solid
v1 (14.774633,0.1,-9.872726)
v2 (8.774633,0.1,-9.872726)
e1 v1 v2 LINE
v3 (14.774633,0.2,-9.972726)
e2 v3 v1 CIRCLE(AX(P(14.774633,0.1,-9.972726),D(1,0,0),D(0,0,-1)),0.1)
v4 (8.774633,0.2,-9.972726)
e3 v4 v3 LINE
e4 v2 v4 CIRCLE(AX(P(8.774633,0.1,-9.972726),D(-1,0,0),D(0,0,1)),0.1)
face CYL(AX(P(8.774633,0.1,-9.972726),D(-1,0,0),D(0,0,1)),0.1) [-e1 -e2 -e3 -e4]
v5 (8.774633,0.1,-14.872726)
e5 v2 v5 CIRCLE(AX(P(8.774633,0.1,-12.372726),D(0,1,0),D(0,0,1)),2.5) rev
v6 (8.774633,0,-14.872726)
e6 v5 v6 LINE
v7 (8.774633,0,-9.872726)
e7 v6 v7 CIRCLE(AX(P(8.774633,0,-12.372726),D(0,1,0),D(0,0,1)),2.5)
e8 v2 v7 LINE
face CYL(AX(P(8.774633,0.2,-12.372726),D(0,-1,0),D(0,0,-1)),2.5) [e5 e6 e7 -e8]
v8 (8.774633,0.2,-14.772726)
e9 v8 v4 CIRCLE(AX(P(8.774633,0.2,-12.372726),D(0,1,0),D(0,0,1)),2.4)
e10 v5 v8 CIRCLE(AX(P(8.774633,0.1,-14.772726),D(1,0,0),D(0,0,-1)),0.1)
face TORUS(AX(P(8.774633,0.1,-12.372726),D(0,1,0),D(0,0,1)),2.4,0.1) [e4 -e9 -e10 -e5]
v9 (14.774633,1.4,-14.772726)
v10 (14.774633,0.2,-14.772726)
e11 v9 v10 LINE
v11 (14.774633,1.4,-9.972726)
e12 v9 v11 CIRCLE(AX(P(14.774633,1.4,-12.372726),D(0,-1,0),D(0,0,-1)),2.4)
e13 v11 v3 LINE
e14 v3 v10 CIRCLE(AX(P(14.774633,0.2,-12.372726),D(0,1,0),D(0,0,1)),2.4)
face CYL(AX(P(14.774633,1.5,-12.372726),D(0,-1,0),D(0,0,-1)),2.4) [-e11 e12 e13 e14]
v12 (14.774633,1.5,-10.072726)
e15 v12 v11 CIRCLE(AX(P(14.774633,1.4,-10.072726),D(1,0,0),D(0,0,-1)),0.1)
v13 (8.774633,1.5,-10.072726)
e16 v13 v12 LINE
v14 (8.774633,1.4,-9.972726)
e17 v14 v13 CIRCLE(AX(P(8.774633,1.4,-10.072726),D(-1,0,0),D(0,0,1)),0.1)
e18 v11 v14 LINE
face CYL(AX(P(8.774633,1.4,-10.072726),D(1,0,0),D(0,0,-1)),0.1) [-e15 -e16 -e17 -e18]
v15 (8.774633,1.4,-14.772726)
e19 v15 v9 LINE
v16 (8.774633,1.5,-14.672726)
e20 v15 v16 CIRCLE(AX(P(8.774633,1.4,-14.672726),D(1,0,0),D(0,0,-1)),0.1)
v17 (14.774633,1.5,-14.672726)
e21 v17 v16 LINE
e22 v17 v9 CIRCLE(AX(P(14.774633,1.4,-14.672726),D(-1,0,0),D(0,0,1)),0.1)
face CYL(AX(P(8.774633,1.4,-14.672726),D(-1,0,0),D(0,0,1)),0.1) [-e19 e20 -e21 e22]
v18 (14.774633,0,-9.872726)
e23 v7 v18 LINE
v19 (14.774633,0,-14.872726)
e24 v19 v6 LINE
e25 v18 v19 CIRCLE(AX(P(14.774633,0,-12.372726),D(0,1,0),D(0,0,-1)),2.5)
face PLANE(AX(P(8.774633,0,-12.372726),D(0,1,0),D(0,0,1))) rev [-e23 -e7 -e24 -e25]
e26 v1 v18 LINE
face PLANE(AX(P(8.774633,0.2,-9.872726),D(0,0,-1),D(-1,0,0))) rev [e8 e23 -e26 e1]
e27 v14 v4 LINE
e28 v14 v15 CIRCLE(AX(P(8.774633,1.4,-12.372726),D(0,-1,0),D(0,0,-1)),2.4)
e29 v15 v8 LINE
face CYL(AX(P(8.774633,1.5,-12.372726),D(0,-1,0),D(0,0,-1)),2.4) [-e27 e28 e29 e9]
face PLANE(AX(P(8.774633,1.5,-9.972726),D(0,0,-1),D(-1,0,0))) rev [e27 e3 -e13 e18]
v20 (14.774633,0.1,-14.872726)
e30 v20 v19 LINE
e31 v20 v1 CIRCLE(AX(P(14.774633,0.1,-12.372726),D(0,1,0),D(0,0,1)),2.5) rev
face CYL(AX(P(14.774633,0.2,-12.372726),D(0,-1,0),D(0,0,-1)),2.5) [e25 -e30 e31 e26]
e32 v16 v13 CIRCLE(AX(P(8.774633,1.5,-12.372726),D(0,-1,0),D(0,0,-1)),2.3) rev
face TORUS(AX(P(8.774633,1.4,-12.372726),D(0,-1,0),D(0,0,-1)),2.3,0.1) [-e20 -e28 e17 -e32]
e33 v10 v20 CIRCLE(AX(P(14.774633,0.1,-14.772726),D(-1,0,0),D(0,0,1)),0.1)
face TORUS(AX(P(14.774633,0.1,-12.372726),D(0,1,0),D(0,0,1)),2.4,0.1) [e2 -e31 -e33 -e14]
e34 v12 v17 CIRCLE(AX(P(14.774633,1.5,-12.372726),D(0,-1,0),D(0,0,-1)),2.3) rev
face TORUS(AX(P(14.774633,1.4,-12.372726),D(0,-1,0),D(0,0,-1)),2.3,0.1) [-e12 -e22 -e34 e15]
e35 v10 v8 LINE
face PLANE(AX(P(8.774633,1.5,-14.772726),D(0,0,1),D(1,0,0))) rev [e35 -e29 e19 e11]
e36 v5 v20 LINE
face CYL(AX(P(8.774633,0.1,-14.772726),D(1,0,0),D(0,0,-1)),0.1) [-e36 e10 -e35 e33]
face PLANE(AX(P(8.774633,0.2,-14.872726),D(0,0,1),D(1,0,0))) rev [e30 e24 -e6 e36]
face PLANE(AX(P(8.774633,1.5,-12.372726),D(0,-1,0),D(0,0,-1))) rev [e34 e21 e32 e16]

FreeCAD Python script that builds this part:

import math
import FreeCAD as App
import Part
import Sketcher
from FreeCAD import Vector
Q = App.Units.Quantity


def edges_at(feature, points):
    """Names of the edges that pass closest to the given points."""
    edges = feature.Shape.Edges
    near = lambda p: min(range(len(edges)), key=lambda i: edges[i].distToShape(Part.Vertex(*p))[0])
    return sorted({f"Edge{near(p) + 1}" for p in points})

doc = App.newDocument("Part")
params = doc.addObject("Spreadsheet::Sheet", "Params")
for row, (alias, value) in enumerate([
    ("sketch1_radius", "2.5 mm"),
    ("sketch1_width", "6 mm"),
    ("pad1_length", "0.2 mm"),
    ("fillet_radius", "0.1 mm"),
    ("sketch2_radius", "2.4 mm"),
    ("sketch2_width", "6 mm"),
    ("pad2_length", "1.3 mm"),
    ("fillet2_radius", "0.1 mm"),
], start=1):
    params.set(f"A{row}", alias)
    params.set(f"B{row}", "=" + value)
    params.setAlias(f"B{row}", alias)

body = doc.addObject("PartDesign::Body", "Body")

sketch1 = doc.addObject("Sketcher::SketchObject", "Sketch")
body.addObject(sketch1)
sketch1.AttachmentSupport = (doc.XZ_Plane, [""])
sketch1.MapMode = "FlatFace"
sketch1.addGeometry(Part.LineSegment(Vector(14.8, -14.9, 0), Vector(8.8, -14.9, 0)), False)
sketch1.addGeometry(Part.ArcOfCircle(Part.Circle(Vector(8.8, -12.4, 0), Vector(0, 0, 1), 2.5), math.radians(90), math.radians(270)), False)
sketch1.addGeometry(Part.LineSegment(Vector(8.8, -9.9, 0), Vector(14.8, -9.9, 0)), False)
sketch1.addGeometry(Part.ArcOfCircle(Part.Circle(Vector(14.8, -12.4, 0), Vector(0, 0, 1), 2.5), math.radians(-90), math.radians(90)), False)
sketch1.addConstraint(Sketcher.Constraint("Tangent", 0, 2, 1, 2))
sketch1.addConstraint(Sketcher.Constraint("Tangent", 1, 1, 2, 1))
sketch1.addConstraint(Sketcher.Constraint("Tangent", 2, 2, 3, 2))
sketch1.addConstraint(Sketcher.Constraint("Tangent", 3, 1, 0, 1))
sketch1.addConstraint(Sketcher.Constraint("Horizontal", 0))
sketch1.addConstraint(Sketcher.Constraint("Horizontal", 2))
sketch1.addConstraint(Sketcher.Constraint("Radius", 1, Q("2.5 mm")))
sketch1.addConstraint(Sketcher.Constraint("DistanceX", 0, 2, 0, 1, Q("6 mm")))
sketch1.addConstraint(Sketcher.Constraint("DistanceX", -1, 1, 1, 3, Q("8.774633 mm")))
sketch1.addConstraint(Sketcher.Constraint("DistanceY", 1, 3, -1, 1, Q("12.372726 mm")))
sketch1.setExpression("Constraints[6]", "Params.sketch1_radius")
sketch1.setExpression("Constraints[7]", "Params.sketch1_width")
pad1 = doc.addObject("PartDesign::Pad", "Pad")
body.addObject(pad1)
pad1.Profile = sketch1
pad1.setExpression("Length", "Params.pad1_length")
pad1.Reversed = True
doc.recompute()

fillet = doc.addObject("PartDesign::Fillet", "Fillet")
body.addObject(fillet)
fillet.Base = (pad1, edges_at(pad1, [
    (17.275, 0.2, -12.373),
    (11.775, 0.2, -14.873),
    (6.275, 0.2, -12.373),
    (11.775, 0.2, -9.873),
]))
fillet.setExpression("Radius", "Params.fillet_radius")

sketch2 = doc.addObject("Sketcher::SketchObject", "Sketch001")
body.addObject(sketch2)
sketch2.AttachmentSupport = (doc.XZ_Plane, [""])
sketch2.MapMode = "FlatFace"
sketch2.AttachmentOffset = App.Placement(Vector(0, 0, -0.2), App.Rotation())
sketch2.addGeometry(Part.LineSegment(Vector(14.8, -14.8, 0), Vector(8.8, -14.8, 0)), False)
sketch2.addGeometry(Part.ArcOfCircle(Part.Circle(Vector(8.8, -12.4, 0), Vector(0, 0, 1), 2.4), math.radians(90), math.radians(270)), False)
sketch2.addGeometry(Part.LineSegment(Vector(8.8, -10, 0), Vector(14.8, -10, 0)), False)
sketch2.addGeometry(Part.ArcOfCircle(Part.Circle(Vector(14.8, -12.4, 0), Vector(0, 0, 1), 2.4), math.radians(-90), math.radians(90)), False)
sketch2.addConstraint(Sketcher.Constraint("Tangent", 0, 2, 1, 2))
sketch2.addConstraint(Sketcher.Constraint("Tangent", 1, 1, 2, 1))
sketch2.addConstraint(Sketcher.Constraint("Tangent", 2, 2, 3, 2))
sketch2.addConstraint(Sketcher.Constraint("Tangent", 3, 1, 0, 1))
sketch2.addConstraint(Sketcher.Constraint("Horizontal", 0))
sketch2.addConstraint(Sketcher.Constraint("Horizontal", 2))
sketch2.addConstraint(Sketcher.Constraint("Radius", 1, Q("2.4 mm")))
sketch2.addConstraint(Sketcher.Constraint("DistanceX", 0, 2, 0, 1, Q("6 mm")))
sketch2.addConstraint(Sketcher.Constraint("DistanceX", -1, 1, 1, 3, Q("8.774633 mm")))
sketch2.addConstraint(Sketcher.Constraint("DistanceY", 1, 3, -1, 1, Q("12.372726 mm")))
sketch2.setExpression("Constraints[6]", "Params.sketch2_radius")
sketch2.setExpression("Constraints[7]", "Params.sketch2_width")
pad2 = doc.addObject("PartDesign::Pad", "Pad001")
body.addObject(pad2)
pad2.Profile = sketch2
pad2.setExpression("Length", "Params.pad2_length")
pad2.Reversed = True
doc.recompute()

fillet2 = doc.addObject("PartDesign::Fillet", "Fillet001")
body.addObject(fillet2)
fillet2.Base = (pad2, edges_at(pad2, [
    (6.375, 1.5, -12.373),
    (11.775, 1.5, -9.973),
    (17.175, 1.5, -12.373),
    (11.775, 1.5, -14.773),
]))
fillet2.setExpression("Radius", "Params.fillet2_radius")

doc.recompute()
